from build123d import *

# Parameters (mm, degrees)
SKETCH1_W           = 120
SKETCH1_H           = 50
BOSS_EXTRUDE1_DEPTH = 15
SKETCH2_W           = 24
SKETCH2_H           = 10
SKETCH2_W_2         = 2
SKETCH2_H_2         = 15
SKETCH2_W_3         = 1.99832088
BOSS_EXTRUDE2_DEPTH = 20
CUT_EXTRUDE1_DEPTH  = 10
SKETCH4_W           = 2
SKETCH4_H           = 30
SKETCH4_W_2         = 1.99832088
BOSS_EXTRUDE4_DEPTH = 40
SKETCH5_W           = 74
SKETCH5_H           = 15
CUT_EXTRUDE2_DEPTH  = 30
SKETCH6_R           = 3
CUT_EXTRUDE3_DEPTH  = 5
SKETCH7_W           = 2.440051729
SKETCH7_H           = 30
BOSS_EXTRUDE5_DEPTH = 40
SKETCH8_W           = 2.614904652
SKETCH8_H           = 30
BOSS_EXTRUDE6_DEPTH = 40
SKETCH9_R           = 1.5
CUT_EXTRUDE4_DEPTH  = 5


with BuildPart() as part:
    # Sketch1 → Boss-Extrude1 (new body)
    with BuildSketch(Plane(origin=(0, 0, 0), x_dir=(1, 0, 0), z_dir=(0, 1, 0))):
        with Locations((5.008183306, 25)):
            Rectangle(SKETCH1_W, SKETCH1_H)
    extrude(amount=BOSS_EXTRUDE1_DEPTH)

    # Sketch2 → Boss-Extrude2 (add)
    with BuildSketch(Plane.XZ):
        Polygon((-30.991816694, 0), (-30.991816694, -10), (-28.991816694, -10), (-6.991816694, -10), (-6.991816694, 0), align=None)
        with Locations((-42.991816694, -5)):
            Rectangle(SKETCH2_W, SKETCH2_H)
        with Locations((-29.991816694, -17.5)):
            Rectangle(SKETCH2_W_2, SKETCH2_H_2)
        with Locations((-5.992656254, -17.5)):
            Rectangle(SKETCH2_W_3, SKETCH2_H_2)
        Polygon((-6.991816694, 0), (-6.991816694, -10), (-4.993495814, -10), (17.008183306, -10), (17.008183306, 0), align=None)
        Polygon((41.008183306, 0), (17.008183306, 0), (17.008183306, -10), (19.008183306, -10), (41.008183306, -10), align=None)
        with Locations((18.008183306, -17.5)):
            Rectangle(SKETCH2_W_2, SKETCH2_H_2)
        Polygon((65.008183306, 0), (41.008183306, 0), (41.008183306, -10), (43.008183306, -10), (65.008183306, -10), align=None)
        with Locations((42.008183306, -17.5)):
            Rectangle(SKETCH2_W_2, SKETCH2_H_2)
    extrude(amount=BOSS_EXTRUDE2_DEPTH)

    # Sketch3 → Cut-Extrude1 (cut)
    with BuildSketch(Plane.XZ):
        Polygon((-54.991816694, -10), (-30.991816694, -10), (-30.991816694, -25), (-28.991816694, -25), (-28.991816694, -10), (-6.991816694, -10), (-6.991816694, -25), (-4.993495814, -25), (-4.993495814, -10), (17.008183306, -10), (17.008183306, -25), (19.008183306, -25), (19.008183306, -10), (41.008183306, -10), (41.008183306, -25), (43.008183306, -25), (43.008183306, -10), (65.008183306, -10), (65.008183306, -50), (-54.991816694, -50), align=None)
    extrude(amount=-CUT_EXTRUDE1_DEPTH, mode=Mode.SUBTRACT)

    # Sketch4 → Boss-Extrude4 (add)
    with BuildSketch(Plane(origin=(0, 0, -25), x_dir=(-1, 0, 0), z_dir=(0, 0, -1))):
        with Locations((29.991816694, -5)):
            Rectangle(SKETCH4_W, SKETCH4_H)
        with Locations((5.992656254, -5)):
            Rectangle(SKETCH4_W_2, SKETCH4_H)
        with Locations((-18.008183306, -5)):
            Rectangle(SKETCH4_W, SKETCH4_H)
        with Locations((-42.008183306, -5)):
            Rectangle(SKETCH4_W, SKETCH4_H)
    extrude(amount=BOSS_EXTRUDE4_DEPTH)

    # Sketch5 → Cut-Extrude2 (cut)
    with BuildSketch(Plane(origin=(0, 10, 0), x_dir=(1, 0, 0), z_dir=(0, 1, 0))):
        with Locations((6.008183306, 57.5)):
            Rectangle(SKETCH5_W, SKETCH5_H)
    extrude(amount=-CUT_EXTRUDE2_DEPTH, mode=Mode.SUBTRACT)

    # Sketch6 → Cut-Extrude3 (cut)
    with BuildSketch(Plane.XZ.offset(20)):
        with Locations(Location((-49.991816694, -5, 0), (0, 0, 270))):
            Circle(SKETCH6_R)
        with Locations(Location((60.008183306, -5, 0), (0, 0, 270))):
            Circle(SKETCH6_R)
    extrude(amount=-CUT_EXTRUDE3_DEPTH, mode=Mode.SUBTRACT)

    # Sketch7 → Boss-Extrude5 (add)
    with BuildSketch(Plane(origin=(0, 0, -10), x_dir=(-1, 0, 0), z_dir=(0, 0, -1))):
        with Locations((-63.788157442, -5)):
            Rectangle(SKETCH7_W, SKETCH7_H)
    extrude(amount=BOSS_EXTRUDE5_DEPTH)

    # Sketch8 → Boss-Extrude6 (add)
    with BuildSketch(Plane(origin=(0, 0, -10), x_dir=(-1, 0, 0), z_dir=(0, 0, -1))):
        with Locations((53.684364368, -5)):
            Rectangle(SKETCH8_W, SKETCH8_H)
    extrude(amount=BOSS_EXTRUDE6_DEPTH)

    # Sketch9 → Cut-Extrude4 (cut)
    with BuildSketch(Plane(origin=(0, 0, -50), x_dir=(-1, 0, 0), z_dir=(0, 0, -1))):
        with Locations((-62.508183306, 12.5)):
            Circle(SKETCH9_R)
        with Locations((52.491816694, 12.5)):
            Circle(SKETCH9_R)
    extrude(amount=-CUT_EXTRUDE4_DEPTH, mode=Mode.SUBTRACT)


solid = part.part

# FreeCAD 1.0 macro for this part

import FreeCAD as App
import Part
import Sketcher

V = App.Vector
Q = App.Units.Quantity

doc = App.newDocument("Part")
body = doc.addObject("PartDesign::Body", "Body")

sketch1 = doc.addObject("Sketcher::SketchObject", "Sketch")
body.addObject(sketch1)
sketch1.AttachmentSupport = (doc.XZ_Plane, [""])
sketch1.MapMode = "FlatFace"
sketch1.addGeometry(Part.LineSegment(V(-55, -50, 0), V(-55, 0, 0)), False)
sketch1.addGeometry(Part.LineSegment(V(-55, 0, 0), V(65, 0, 0)), False)
sketch1.addGeometry(Part.LineSegment(V(65, 0, 0), V(65, -50, 0)), False)
sketch1.addGeometry(Part.LineSegment(V(65, -50, 0), V(-55, -50, 0)), False)
sketch1.addConstraint(Sketcher.Constraint("Coincident", 0, 2, 1, 1))
sketch1.addConstraint(Sketcher.Constraint("Coincident", 1, 2, 2, 1))
sketch1.addConstraint(Sketcher.Constraint("Coincident", 2, 2, 3, 1))
sketch1.addConstraint(Sketcher.Constraint("Coincident", 3, 2, 0, 1))
sketch1.addConstraint(Sketcher.Constraint("Vertical", 0))
sketch1.addConstraint(Sketcher.Constraint("Horizontal", 1))
sketch1.addConstraint(Sketcher.Constraint("Vertical", 2))
sketch1.addConstraint(Sketcher.Constraint("Horizontal", 3))
sketch1.addConstraint(Sketcher.Constraint("PointOnObject", 0, 2, -1))
sketch1.addConstraint(Sketcher.Constraint("DistanceX", 1, 1, 1, 2, Q("120 mm")))
sketch1.addConstraint(Sketcher.Constraint("DistanceY", 0, 1, 0, 2, Q("50 mm")))
sketch1.addConstraint(Sketcher.Constraint("DistanceX", 0, 2, -1, 1, Q("54.991817 mm")))
pad1 = doc.addObject("PartDesign::Pad", "Pad")
body.addObject(pad1)
pad1.Profile = sketch1
pad1.Length = 15
pad1.Reversed = True

sketch2 = doc.addObject("Sketcher::SketchObject", "Sketch001")
body.addObject(sketch2)
sketch2.AttachmentSupport = (doc.XZ_Plane, [""])
sketch2.MapMode = "FlatFace"
sketch2.addGeometry(Part.LineSegment(V(-55, 0, 0), V(-55, -10, 0)), False)
sketch2.addGeometry(Part.LineSegment(V(-55, -10, 0), V(-31, -10, 0)), False)
sketch2.addGeometry(Part.LineSegment(V(-31, -10, 0), V(-31, -25, 0)), False)
sketch2.addGeometry(Part.LineSegment(V(-31, -25, 0), V(-29, -25, 0)), False)
sketch2.addGeometry(Part.LineSegment(V(-29, -25, 0), V(-29, -10, 0)), False)
sketch2.addGeometry(Part.LineSegment(V(-29, -10, 0), V(-7, -10, 0)), False)
sketch2.addGeometry(Part.LineSegment(V(-7, -10, 0), V(-7, -25, 0)), False)
sketch2.addGeometry(Part.LineSegment(V(-7, -25, 0), V(-5, -25, 0)), False)
sketch2.addGeometry(Part.LineSegment(V(-5, -25, 0), V(-5, -10, 0)), False)
sketch2.addGeometry(Part.LineSegment(V(-5, -10, 0), V(17, -10, 0)), False)
sketch2.addGeometry(Part.LineSegment(V(17, -10, 0), V(17, -25, 0)), False)
sketch2.addGeometry(Part.LineSegment(V(17, -25, 0), V(19, -25, 0)), False)
sketch2.addGeometry(Part.LineSegment(V(19, -25, 0), V(19, -10, 0)), False)
sketch2.addGeometry(Part.LineSegment(V(19, -10, 0), V(41, -10, 0)), False)
sketch2.addGeometry(Part.LineSegment(V(41, -10, 0), V(41, -25, 0)), False)
sketch2.addGeometry(Part.LineSegment(V(41, -25, 0), V(43, -25, 0)), False)
sketch2.addGeometry(Part.LineSegment(V(43, -25, 0), V(43, -10, 0)), False)
sketch2.addGeometry(Part.LineSegment(V(43, -10, 0), V(65, -10, 0)), False)
sketch2.addGeometry(Part.LineSegment(V(65, -10, 0), V(65, 0, 0)), False)
sketch2.addGeometry(Part.LineSegment(V(65, 0, 0), V(-55, 0, 0)), False)
sketch2.addConstraint(Sketcher.Constraint("Coincident", 0, 2, 1, 1))
sketch2.addConstraint(Sketcher.Constraint("Coincident", 1, 2, 2, 1))
sketch2.addConstraint(Sketcher.Constraint("Coincident", 2, 2, 3, 1))
sketch2.addConstraint(Sketcher.Constraint("Coincident", 3, 2, 4, 1))
sketch2.addConstraint(Sketcher.Constraint("Coincident", 4, 2, 5, 1))
sketch2.addConstraint(Sketcher.Constraint("Coincident", 5, 2, 6, 1))
sketch2.addConstraint(Sketcher.Constraint("Coincident", 6, 2, 7, 1))
sketch2.addConstraint(Sketcher.Constraint("Coincident", 7, 2, 8, 1))
sketch2.addConstraint(Sketcher.Constraint("Coincident", 8, 2, 9, 1))
sketch2.addConstraint(Sketcher.Constraint("Coincident", 9, 2, 10, 1))
sketch2.addConstraint(Sketcher.Constraint("Coincident", 10, 2, 11, 1))
sketch2.addConstraint(Sketcher.Constraint("Coincident", 11, 2, 12, 1))
sketch2.addConstraint(Sketcher.Constraint("Coincident", 12, 2, 13, 1))
sketch2.addConstraint(Sketcher.Constraint("Coincident", 13, 2, 14, 1))
sketch2.addConstraint(Sketcher.Constraint("Coincident", 14, 2, 15, 1))
sketch2.addConstraint(Sketcher.Constraint("Coincident", 15, 2, 16, 1))
sketch2.addConstraint(Sketcher.Constraint("Coincident", 16, 2, 17, 1))
sketch2.addConstraint(Sketcher.Constraint("Coincident", 17, 2, 18, 1))
sketch2.addConstraint(Sketcher.Constraint("Coincident", 18, 2, 19, 1))
sketch2.addConstraint(Sketcher.Constraint("Coincident", 19, 2, 0, 1))
sketch2.addConstraint(Sketcher.Constraint("Vertical", 0))
sketch2.addConstraint(Sketcher.Constraint("Horizontal", 1))
sketch2.addConstraint(Sketcher.Constraint("Vertical", 2))
sketch2.addConstraint(Sketcher.Constraint("Horizontal", 3))
sketch2.addConstraint(Sketcher.Constraint("Vertical", 4))
sketch2.addConstraint(Sketcher.Constraint("Horizontal", 5))
sketch2.addConstraint(Sketcher.Constraint("Vertical", 6))
sketch2.addConstraint(Sketcher.Constraint("Horizontal", 7))
sketch2.addConstraint(Sketcher.Constraint("Vertical", 8))
sketch2.addConstraint(Sketcher.Constraint("Horizontal", 9))
sketch2.addConstraint(Sketcher.Constraint("Vertical", 10))
sketch2.addConstraint(Sketcher.Constraint("Horizontal", 11))
sketch2.addConstraint(Sketcher.Constraint("Vertical", 12))
sketch2.addConstraint(Sketcher.Constraint("Horizontal", 13))
sketch2.addConstraint(Sketcher.Constraint("Vertical", 14))
sketch2.addConstraint(Sketcher.Constraint("Horizontal", 15))
sketch2.addConstraint(Sketcher.Constraint("Vertical", 16))
sketch2.addConstraint(Sketcher.Constraint("Horizontal", 17))
sketch2.addConstraint(Sketcher.Constraint("Vertical", 18))
sketch2.addConstraint(Sketcher.Constraint("Horizontal", 19))
sketch2.addConstraint(Sketcher.Constraint("PointOnObject", 18, 2, -1))
sketch2.addConstraint(Sketcher.Constraint("Horizontal", 1, 2, 4, 2))
sketch2.addConstraint(Sketcher.Constraint("Horizontal", 3, 2, 6, 2))
sketch2.addConstraint(Sketcher.Constraint("Horizontal", 5, 2, 8, 2))
sketch2.addConstraint(Sketcher.Constraint("Horizontal", 7, 2, 10, 2))
sketch2.addConstraint(Sketcher.Constraint("Horizontal", 9, 2, 12, 2))
sketch2.addConstraint(Sketcher.Constraint("Horizontal", 11, 2, 14, 2))
sketch2.addConstraint(Sketcher.Constraint("Horizontal", 13, 2, 16, 2))
sketch2.addConstraint(Sketcher.Constraint("Equal", 3, 11))
sketch2.addConstraint(Sketcher.Constraint("Equal", 5, 13))
sketch2.addConstraint(Sketcher.Constraint("Equal", 11, 15))
sketch2.addConstraint(Sketcher.Constraint("Equal", 13, 17))
sketch2.addConstraint(Sketcher.Constraint("DistanceX", 1, 1, 1, 2, Q("24 mm")))
sketch2.addConstraint(Sketcher.Constraint("DistanceX", 3, 1, 3, 2, Q("2 mm")))
sketch2.addConstraint(Sketcher.Constraint("DistanceX", 5, 1, 5, 2, Q("22 mm")))
sketch2.addConstraint(Sketcher.Constraint("DistanceX", 19, 2, 19, 1, Q("120 mm")))
sketch2.addConstraint(Sketcher.Constraint("DistanceY", 0, 2, 0, 1, Q("10 mm")))
sketch2.addConstraint(Sketcher.Constraint("DistanceY", 2, 2, 2, 1, Q("15 mm")))
sketch2.addConstraint(Sketcher.Constraint("DistanceX", 7, 1, 7, 2, Q("1.998321 mm")))
sketch2.addConstraint(Sketcher.Constraint("DistanceX", 0, 2, -1, 1, Q("54.991817 mm")))
pad2 = doc.addObject("PartDesign::Pad", "Pad001")
body.addObject(pad2)
pad2.Profile = sketch2
pad2.Length = 20

sketch3 = doc.addObject("Sketcher::SketchObject", "Sketch002")
body.addObject(sketch3)
sketch3.AttachmentSupport = (doc.XZ_Plane, [""])
sketch3.MapMode = "FlatFace"
sketch3.addGeometry(Part.LineSegment(V(-31, -10, 0), V(-55, -10, 0)), False)
sketch3.addGeometry(Part.LineSegment(V(-55, -10, 0), V(-55, -50, 0)), False)
sketch3.addGeometry(Part.LineSegment(V(-55, -50, 0), V(65, -50, 0)), False)
sketch3.addGeometry(Part.LineSegment(V(65, -50, 0), V(65, -10, 0)), False)
sketch3.addGeometry(Part.LineSegment(V(65, -10, 0), V(43, -10, 0)), False)
sketch3.addGeometry(Part.LineSegment(V(43, -10, 0), V(43, -25, 0)), False)
sketch3.addGeometry(Part.LineSegment(V(43, -25, 0), V(41, -25, 0)), False)
sketch3.addGeometry(Part.LineSegment(V(41, -25, 0), V(41, -10, 0)), False)
sketch3.addGeometry(Part.LineSegment(V(41, -10, 0), V(19, -10, 0)), False)
sketch3.addGeometry(Part.LineSegment(V(19, -10, 0), V(19, -25, 0)), False)
sketch3.addGeometry(Part.LineSegment(V(19, -25, 0), V(17, -25, 0)), False)
sketch3.addGeometry(Part.LineSegment(V(17, -25, 0), V(17, -10, 0)), False)
sketch3.addGeometry(Part.LineSegment(V(17, -10, 0), V(-5, -10, 0)), False)
sketch3.addGeometry(Part.LineSegment(V(-5, -10, 0), V(-5, -25, 0)), False)
sketch3.addGeometry(Part.LineSegment(V(-5, -25, 0), V(-7, -25, 0)), False)
sketch3.addGeometry(Part.LineSegment(V(-7, -25, 0), V(-7, -10, 0)), False)
sketch3.addGeometry(Part.LineSegment(V(-7, -10, 0), V(-29, -10, 0)), False)
sketch3.addGeometry(Part.LineSegment(V(-29, -10, 0), V(-29, -25, 0)), False)
sketch3.addGeometry(Part.LineSegment(V(-29, -25, 0), V(-31, -25, 0)), False)
sketch3.addGeometry(Part.LineSegment(V(-31, -25, 0), V(-31, -10, 0)), False)
sketch3.addConstraint(Sketcher.Constraint("Coincident", 0, 2, 1, 1))
sketch3.addConstraint(Sketcher.Constraint("Coincident", 1, 2, 2, 1))
sketch3.addConstraint(Sketcher.Constraint("Coincident", 2, 2, 3, 1))
sketch3.addConstraint(Sketcher.Constraint("Coincident", 3, 2, 4, 1))
sketch3.addConstraint(Sketcher.Constraint("Coincident", 4, 2, 5, 1))
sketch3.addConstraint(Sketcher.Constraint("Coincident", 5, 2, 6, 1))
sketch3.addConstraint(Sketcher.Constraint("Coincident", 6, 2, 7, 1))
sketch3.addConstraint(Sketcher.Constraint("Coincident", 7, 2, 8, 1))
sketch3.addConstraint(Sketcher.Constraint("Coincident", 8, 2, 9, 1))
sketch3.addConstraint(Sketcher.Constraint("Coincident", 9, 2, 10, 1))
sketch3.addConstraint(Sketcher.Constraint("Coincident", 10, 2, 11, 1))
sketch3.addConstraint(Sketcher.Constraint("Coincident", 11, 2, 12, 1))
sketch3.addConstraint(Sketcher.Constraint("Coincident", 12, 2, 13, 1))
sketch3.addConstraint(Sketcher.Constraint("Coincident", 13, 2, 14, 1))
sketch3.addConstraint(Sketcher.Constraint("Coincident", 14, 2, 15, 1))
sketch3.addConstraint(Sketcher.Constraint("Coincident", 15, 2, 16, 1))
sketch3.addConstraint(Sketcher.Constraint("Coincident", 16, 2, 17, 1))
sketch3.addConstraint(Sketcher.Constraint("Coincident", 17, 2, 18, 1))
sketch3.addConstraint(Sketcher.Constraint("Coincident", 18, 2, 19, 1))
sketch3.addConstraint(Sketcher.Constraint("Coincident", 19, 2, 0, 1))
sketch3.addConstraint(Sketcher.Constraint("Horizontal", 0))
sketch3.addConstraint(Sketcher.Constraint("Vertical", 1))
sketch3.addConstraint(Sketcher.Constraint("Horizontal", 2))
sketch3.addConstraint(Sketcher.Constraint("Vertical", 3))
sketch3.addConstraint(Sketcher.Constraint("Horizontal", 4))
sketch3.addConstraint(Sketcher.Constraint("Vertical", 5))
sketch3.addConstraint(Sketcher.Constraint("Horizontal", 6))
sketch3.addConstraint(Sketcher.Constraint("Vertical", 7))
sketch3.addConstraint(Sketcher.Constraint("Horizontal", 8))
sketch3.addConstraint(Sketcher.Constraint("Vertical", 9))
sketch3.addConstraint(Sketcher.Constraint("Horizontal", 10))
sketch3.addConstraint(Sketcher.Constraint("Vertical", 11))
sketch3.addConstraint(Sketcher.Constraint("Horizontal", 12))
sketch3.addConstraint(Sketcher.Constraint("Vertical", 13))
sketch3.addConstraint(Sketcher.Constraint("Horizontal", 14))
sketch3.addConstraint(Sketcher.Constraint("Vertical", 15))
sketch3.addConstraint(Sketcher.Constraint("Horizontal", 16))
sketch3.addConstraint(Sketcher.Constraint("Vertical", 17))
sketch3.addConstraint(Sketcher.Constraint("Horizontal", 18))
sketch3.addConstraint(Sketcher.Constraint("Vertical", 19))
sketch3.addConstraint(Sketcher.Constraint("Horizontal", 0, 2, 3, 2))
sketch3.addConstraint(Sketcher.Constraint("Horizontal", 4, 2, 7, 2))
sketch3.addConstraint(Sketcher.Constraint("Horizontal", 6, 2, 9, 2))
sketch3.addConstraint(Sketcher.Constraint("Horizontal", 8, 2, 11, 2))
sketch3.addConstraint(Sketcher.Constraint("Horizontal", 10, 2, 13, 2))
sketch3.addConstraint(Sketcher.Constraint("Horizontal", 12, 2, 15, 2))
sketch3.addConstraint(Sketcher.Constraint("Horizontal", 14, 2, 17, 2))
sketch3.addConstraint(Sketcher.Constraint("Equal", 4, 8))
sketch3.addConstraint(Sketcher.Constraint("Equal", 6, 10))
sketch3.addConstraint(Sketcher.Constraint("Equal", 8, 16))
sketch3.addConstraint(Sketcher.Constraint("Equal", 10, 18))
sketch3.addConstraint(Sketcher.Constraint("DistanceX", 0, 2, 0, 1, Q("24 mm")))
sketch3.addConstraint(Sketcher.Constraint("DistanceX", 2, 1, 2, 2, Q("120 mm")))
sketch3.addConstraint(Sketcher.Constraint("DistanceX", 4, 2, 4, 1, Q("22 mm")))
sketch3.addConstraint(Sketcher.Constraint("DistanceX", 6, 2, 6, 1, Q("2 mm")))
sketch3.addConstraint(Sketcher.Constraint("DistanceY", 1, 2, 1, 1, Q("40 mm")))
sketch3.addConstraint(Sketcher.Constraint("DistanceY", 5, 2, 5, 1, Q("15 mm")))
sketch3.addConstraint(Sketcher.Constraint("DistanceY", 0, 2, -1, 1, Q("10 mm")))
sketch3.addConstraint(Sketcher.Constraint("DistanceX", 12, 2, 12, 1, Q("22.001679 mm")))
sketch3.addConstraint(Sketcher.Constraint("DistanceX", 0, 2, -1, 1, Q("54.991817 mm")))
pocket1 = doc.addObject("PartDesign::Pocket", "Pocket")
body.addObject(pocket1)
pocket1.Profile = sketch3
pocket1.Length = 10

sketch4 = doc.addObject("Sketcher::SketchObject", "Sketch003")
body.addObject(sketch4)
sketch4.AttachmentSupport = (doc.XY_Plane, [""])
sketch4.MapMode = "FlatFace"
sketch4.AttachmentOffset = App.Placement(V(0, 0, -25), App.Rotation())
sketch4.addGeometry(Part.LineSegment(V(-29, 10, 0), V(-29, -20, 0)), False)
sketch4.addGeometry(Part.LineSegment(V(-29, -20, 0), V(-31, -20, 0)), False)
sketch4.addGeometry(Part.LineSegment(V(-31, -20, 0), V(-31, 10, 0)), False)
sketch4.addGeometry(Part.LineSegment(V(-31, 10, 0), V(-29, 10, 0)), False)
sketch4.addGeometry(Part.LineSegment(V(-5, 10, 0), V(-5, -20, 0)), False)
sketch4.addGeometry(Part.LineSegment(V(-5, -20, 0), V(-7, -20, 0)), False)
sketch4.addGeometry(Part.LineSegment(V(-7, -20, 0), V(-7, 10, 0)), False)
sketch4.addGeometry(Part.LineSegment(V(-7, 10, 0), V(-5, 10, 0)), False)
sketch4.addGeometry(Part.LineSegment(V(19, 10, 0), V(19, -20, 0)), False)
sketch4.addGeometry(Part.LineSegment(V(19, -20, 0), V(17, -20, 0)), False)
sketch4.addGeometry(Part.LineSegment(V(17, -20, 0), V(17, 10, 0)), False)
sketch4.addGeometry(Part.LineSegment(V(17, 10, 0), V(19, 10, 0)), False)
sketch4.addGeometry(Part.LineSegment(V(43, 10, 0), V(43, -20, 0)), False)
sketch4.addGeometry(Part.LineSegment(V(43, -20, 0), V(41, -20, 0)), False)
sketch4.addGeometry(Part.LineSegment(V(41, -20, 0), V(41, 10, 0)), False)
sketch4.addGeometry(Part.LineSegment(V(41, 10, 0), V(43, 10, 0)), False)
sketch4.addConstraint(Sketcher.Constraint("Coincident", 0, 2, 1, 1))
sketch4.addConstraint(Sketcher.Constraint("Coincident", 1, 2, 2, 1))
sketch4.addConstraint(Sketcher.Constraint("Coincident", 2, 2, 3, 1))
sketch4.addConstraint(Sketcher.Constraint("Coincident", 3, 2, 0, 1))
sketch4.addConstraint(Sketcher.Constraint("Coincident", 4, 2, 5, 1))
sketch4.addConstraint(Sketcher.Constraint("Coincident", 5, 2, 6, 1))
sketch4.addConstraint(Sketcher.Constraint("Coincident", 6, 2, 7, 1))
sketch4.addConstraint(Sketcher.Constraint("Coincident", 7, 2, 4, 1))
sketch4.addConstraint(Sketcher.Constraint("Coincident", 8, 2, 9, 1))
sketch4.addConstraint(Sketcher.Constraint("Coincident", 9, 2, 10, 1))
sketch4.addConstraint(Sketcher.Constraint("Coincident", 10, 2, 11, 1))
sketch4.addConstraint(Sketcher.Constraint("Coincident", 11, 2, 8, 1))
sketch4.addConstraint(Sketcher.Constraint("Coincident", 12, 2, 13, 1))
sketch4.addConstraint(Sketcher.Constraint("Coincident", 13, 2, 14, 1))
sketch4.addConstraint(Sketcher.Constraint("Coincident", 14, 2, 15, 1))
sketch4.addConstraint(Sketcher.Constraint("Coincident", 15, 2, 12, 1))
sketch4.addConstraint(Sketcher.Constraint("Vertical", 0))
sketch4.addConstraint(Sketcher.Constraint("Horizontal", 1))
sketch4.addConstraint(Sketcher.Constraint("Vertical", 2))
sketch4.addConstraint(Sketcher.Constraint("Horizontal", 3))
sketch4.addConstraint(Sketcher.Constraint("Vertical", 4))
sketch4.addConstraint(Sketcher.Constraint("Horizontal", 5))
sketch4.addConstraint(Sketcher.Constraint("Vertical", 6))
sketch4.addConstraint(Sketcher.Constraint("Horizontal", 7))
sketch4.addConstraint(Sketcher.Constraint("Vertical", 8))
sketch4.addConstraint(Sketcher.Constraint("Horizontal", 9))
sketch4.addConstraint(Sketcher.Constraint("Vertical", 10))
sketch4.addConstraint(Sketcher.Constraint("Horizontal", 11))
sketch4.addConstraint(Sketcher.Constraint("Vertical", 12))
sketch4.addConstraint(Sketcher.Constraint("Horizontal", 13))
sketch4.addConstraint(Sketcher.Constraint("Vertical", 14))
sketch4.addConstraint(Sketcher.Constraint("Horizontal", 15))
sketch4.addConstraint(Sketcher.Constraint("Horizontal", 1, 2, 4, 2))
sketch4.addConstraint(Sketcher.Constraint("Horizontal", 3, 2, 6, 2))
sketch4.addConstraint(Sketcher.Constraint("Horizontal", 5, 2, 8, 2))
sketch4.addConstraint(Sketcher.Constraint("Horizontal", 7, 2, 10, 2))
sketch4.addConstraint(Sketcher.Constraint("Horizontal", 9, 2, 12, 2))
sketch4.addConstraint(Sketcher.Constraint("Horizontal", 11, 2, 14, 2))
sketch4.addConstraint(Sketcher.Constraint("Equal", 3, 9))
sketch4.addConstraint(Sketcher.Constraint("Equal", 11, 13))
sketch4.addConstraint(Sketcher.Constraint("DistanceX", 1, 2, 1, 1, Q("2 mm")))
sketch4.addConstraint(Sketcher.Constraint("DistanceY", 0, 2, 0, 1, Q("30 mm")))
sketch4.addConstraint(Sketcher.Constraint("DistanceY", 0, 2, -1, 1, Q("20 mm")))
sketch4.addConstraint(Sketcher.Constraint("DistanceX", 0, 2, 5, 2, Q("22 mm")))
sketch4.addConstraint(Sketcher.Constraint("DistanceX", 5, 2, 8, 2, Q("26 mm")))
sketch4.addConstraint(Sketcher.Constraint("DistanceX", 8, 2, 12, 2, Q("24 mm")))
sketch4.addConstraint(Sketcher.Constraint("DistanceX", 5, 2, 5, 1, Q("1.998321 mm")))
sketch4.addConstraint(Sketcher.Constraint("DistanceX", 0, 2, -1, 1, Q("28.991817 mm")))
pad3 = doc.addObject("PartDesign::Pad", "Pad002")
body.addObject(pad3)
pad3.Profile = sketch4
pad3.Length = 40
pad3.Reversed = True

sketch5 = doc.addObject("Sketcher::SketchObject", "Sketch004")
body.addObject(sketch5)
sketch5.AttachmentSupport = (doc.XZ_Plane, [""])
sketch5.MapMode = "FlatFace"
sketch5.AttachmentOffset = App.Placement(V(0, 0, -10), App.Rotation())
sketch5.addGeometry(Part.LineSegment(V(-31, -65, 0), V(-31, -50, 0)), False)
sketch5.addGeometry(Part.LineSegment(V(-31, -50, 0), V(43, -50, 0)), False)
sketch5.addGeometry(Part.LineSegment(V(43, -50, 0), V(43, -65, 0)), False)
sketch5.addGeometry(Part.LineSegment(V(43, -65, 0), V(-31, -65, 0)), False)
sketch5.addConstraint(Sketcher.Constraint("Coincident", 0, 2, 1, 1))
sketch5.addConstraint(Sketcher.Constraint("Coincident", 1, 2, 2, 1))
sketch5.addConstraint(Sketcher.Constraint("Coincident", 2, 2, 3, 1))
sketch5.addConstraint(Sketcher.Constraint("Coincident", 3, 2, 0, 1))
sketch5.addConstraint(Sketcher.Constraint("Vertical", 0))
sketch5.addConstraint(Sketcher.Constraint("Horizontal", 1))
sketch5.addConstraint(Sketcher.Constraint("Vertical", 2))
sketch5.addConstraint(Sketcher.Constraint("Horizontal", 3))
sketch5.addConstraint(Sketcher.Constraint("DistanceX", 1, 1, 1, 2, Q("74 mm")))
sketch5.addConstraint(Sketcher.Constraint("DistanceY", 0, 1, 0, 2, Q("15 mm")))
sketch5.addConstraint(Sketcher.Constraint("DistanceY", 0, 2, -1, 1, Q("50 mm")))
sketch5.addConstraint(Sketcher.Constraint("DistanceX", 0, 2, -1, 1, Q("30.991817 mm")))
pocket2 = doc.addObject("PartDesign::Pocket", "Pocket001")
body.addObject(pocket2)
pocket2.Profile = sketch5
pocket2.Length = 30
pocket2.Reversed = True

sketch6 = doc.addObject("Sketcher::SketchObject", "Sketch005")
body.addObject(sketch6)
sketch6.AttachmentSupport = (doc.XZ_Plane, [""])
sketch6.MapMode = "FlatFace"
sketch6.AttachmentOffset = App.Placement(V(0, 0, 20), App.Rotation())
sketch6.addGeometry(Part.Circle(V(-50, -5, 0), V(0, 0, 1), 3), False)
sketch6.addGeometry(Part.Circle(V(60, -5, 0), V(0, 0, 1), 3), False)
sketch6.addConstraint(Sketcher.Constraint("Equal", 0, 1))
sketch6.addConstraint(Sketcher.Constraint("Horizontal", 0, 3, 1, 3))
sketch6.addConstraint(Sketcher.Constraint("Diameter", 0, Q("6 mm")))
sketch6.addConstraint(Sketcher.Constraint("DistanceY", 0, 3, -1, 1, Q("5 mm")))
sketch6.addConstraint(Sketcher.Constraint("DistanceX", 0, 3, 1, 3, Q("110 mm")))
sketch6.addConstraint(Sketcher.Constraint("DistanceX", 0, 3, -1, 1, Q("49.991817 mm")))
pocket3 = doc.addObject("PartDesign::Pocket", "Pocket002")
body.addObject(pocket3)
pocket3.Profile = sketch6
pocket3.Length = 5

sketch7 = doc.addObject("Sketcher::SketchObject", "Sketch006")
body.addObject(sketch7)
sketch7.AttachmentSupport = (doc.XY_Plane, [""])
sketch7.MapMode = "FlatFace"
sketch7.AttachmentOffset = App.Placement(V(0, 0, -10), App.Rotation())
sketch7.addGeometry(Part.LineSegment(V(65, 10, 0), V(65, -20, 0)), False)
sketch7.addGeometry(Part.LineSegment(V(65, -20, 0), V(62.6, -20, 0)), False)
sketch7.addGeometry(Part.LineSegment(V(62.6, -20, 0), V(62.6, 10, 0)), False)
sketch7.addGeometry(Part.LineSegment(V(62.6, 10, 0), V(65, 10, 0)), False)
sketch7.addConstraint(Sketcher.Constraint("Coincident", 0, 2, 1, 1))
sketch7.addConstraint(Sketcher.Constraint("Coincident", 1, 2, 2, 1))
sketch7.addConstraint(Sketcher.Constraint("Coincident", 2, 2, 3, 1))
sketch7.addConstraint(Sketcher.Constraint("Coincident", 3, 2, 0, 1))
sketch7.addConstraint(Sketcher.Constraint("Vertical", 0))
sketch7.addConstraint(Sketcher.Constraint("Horizontal", 1))
sketch7.addConstraint(Sketcher.Constraint("Vertical", 2))
sketch7.addConstraint(Sketcher.Constraint("Horizontal", 3))
sketch7.addConstraint(Sketcher.Constraint("DistanceY", 0, 2, 0, 1, Q("30 mm")))
sketch7.addConstraint(Sketcher.Constraint("DistanceY", 0, 2, -1, 1, Q("20 mm")))
sketch7.addConstraint(Sketcher.Constraint("DistanceX", 1, 2, 1, 1, Q("2.440052 mm")))
sketch7.addConstraint(Sketcher.Constraint("DistanceX", -1, 1, 1, 2, Q("62.568132 mm")))
pad4 = doc.addObject("PartDesign::Pad", "Pad003")
body.addObject(pad4)
pad4.Profile = sketch7
pad4.Length = 40
pad4.Reversed = True

sketch8 = doc.addObject("Sketcher::SketchObject", "Sketch007")
body.addObject(sketch8)
sketch8.AttachmentSupport = (doc.XY_Plane, [""])
sketch8.MapMode = "FlatFace"
sketch8.AttachmentOffset = App.Placement(V(0, 0, -10), App.Rotation())
sketch8.addGeometry(Part.LineSegment(V(-52.4, 10, 0), V(-52.4, -20, 0)), False)
sketch8.addGeometry(Part.LineSegment(V(-52.4, -20, 0), V(-55, -20, 0)), False)
sketch8.addGeometry(Part.LineSegment(V(-55, -20, 0), V(-55, 10, 0)), False)
sketch8.addGeometry(Part.LineSegment(V(-55, 10, 0), V(-52.4, 10, 0)), False)
sketch8.addConstraint(Sketcher.Constraint("Coincident", 0, 2, 1, 1))
sketch8.addConstraint(Sketcher.Constraint("Coincident", 1, 2, 2, 1))
sketch8.addConstraint(Sketcher.Constraint("Coincident", 2, 2, 3, 1))
sketch8.addConstraint(Sketcher.Constraint("Coincident", 3, 2, 0, 1))
sketch8.addConstraint(Sketcher.Constraint("Vertical", 0))
sketch8.addConstraint(Sketcher.Constraint("Horizontal", 1))
sketch8.addConstraint(Sketcher.Constraint("Vertical", 2))
sketch8.addConstraint(Sketcher.Constraint("Horizontal", 3))
sketch8.addConstraint(Sketcher.Constraint("DistanceY", 0, 2, 0, 1, Q("30 mm")))
sketch8.addConstraint(Sketcher.Constraint("DistanceY", 0, 2, -1, 1, Q("20 mm")))
sketch8.addConstraint(Sketcher.Constraint("DistanceX", 1, 2, 1, 1, Q("2.614905 mm")))
sketch8.addConstraint(Sketcher.Constraint("DistanceX", 0, 2, -1, 1, Q("52.376912 mm")))
pad5 = doc.addObject("PartDesign::Pad", "Pad004")
body.addObject(pad5)
pad5.Profile = sketch8
pad5.Length = 40
pad5.Reversed = True

sketch9 = doc.addObject("Sketcher::SketchObject", "Sketch008")
body.addObject(sketch9)
sketch9.AttachmentSupport = (doc.XY_Plane, [""])
sketch9.MapMode = "FlatFace"
sketch9.AttachmentOffset = App.Placement(V(0, 0, -50), App.Rotation())
sketch9.addGeometry(Part.Circle(V(62.5, 12.5, 0), V(0, 0, 1), 1.5), False)
sketch9.addGeometry(Part.Circle(V(-52.5, 12.5, 0), V(0, 0, 1), 1.5), False)
sketch9.addConstraint(Sketcher.Constraint("Equal", 0, 1))
sketch9.addConstraint(Sketcher.Constraint("Horizontal", 0, 3, 1, 3))
sketch9.addConstraint(Sketcher.Constraint("Diameter", 0, Q("3 mm")))
sketch9.addConstraint(Sketcher.Constraint("DistanceX", 1, 3, 0, 3, Q("115 mm")))
sketch9.addConstraint(Sketcher.Constraint("DistanceY", -1, 1, 0, 3, Q("12.5 mm")))
sketch9.addConstraint(Sketcher.Constraint("DistanceX", -1, 1, 0, 3, Q("62.508183 mm")))
pocket4 = doc.addObject("PartDesign::Pocket", "Pocket003")
body.addObject(pocket4)
pocket4.Profile = sketch9
pocket4.Length = 5
pocket4.Reversed = True

doc.recompute()
